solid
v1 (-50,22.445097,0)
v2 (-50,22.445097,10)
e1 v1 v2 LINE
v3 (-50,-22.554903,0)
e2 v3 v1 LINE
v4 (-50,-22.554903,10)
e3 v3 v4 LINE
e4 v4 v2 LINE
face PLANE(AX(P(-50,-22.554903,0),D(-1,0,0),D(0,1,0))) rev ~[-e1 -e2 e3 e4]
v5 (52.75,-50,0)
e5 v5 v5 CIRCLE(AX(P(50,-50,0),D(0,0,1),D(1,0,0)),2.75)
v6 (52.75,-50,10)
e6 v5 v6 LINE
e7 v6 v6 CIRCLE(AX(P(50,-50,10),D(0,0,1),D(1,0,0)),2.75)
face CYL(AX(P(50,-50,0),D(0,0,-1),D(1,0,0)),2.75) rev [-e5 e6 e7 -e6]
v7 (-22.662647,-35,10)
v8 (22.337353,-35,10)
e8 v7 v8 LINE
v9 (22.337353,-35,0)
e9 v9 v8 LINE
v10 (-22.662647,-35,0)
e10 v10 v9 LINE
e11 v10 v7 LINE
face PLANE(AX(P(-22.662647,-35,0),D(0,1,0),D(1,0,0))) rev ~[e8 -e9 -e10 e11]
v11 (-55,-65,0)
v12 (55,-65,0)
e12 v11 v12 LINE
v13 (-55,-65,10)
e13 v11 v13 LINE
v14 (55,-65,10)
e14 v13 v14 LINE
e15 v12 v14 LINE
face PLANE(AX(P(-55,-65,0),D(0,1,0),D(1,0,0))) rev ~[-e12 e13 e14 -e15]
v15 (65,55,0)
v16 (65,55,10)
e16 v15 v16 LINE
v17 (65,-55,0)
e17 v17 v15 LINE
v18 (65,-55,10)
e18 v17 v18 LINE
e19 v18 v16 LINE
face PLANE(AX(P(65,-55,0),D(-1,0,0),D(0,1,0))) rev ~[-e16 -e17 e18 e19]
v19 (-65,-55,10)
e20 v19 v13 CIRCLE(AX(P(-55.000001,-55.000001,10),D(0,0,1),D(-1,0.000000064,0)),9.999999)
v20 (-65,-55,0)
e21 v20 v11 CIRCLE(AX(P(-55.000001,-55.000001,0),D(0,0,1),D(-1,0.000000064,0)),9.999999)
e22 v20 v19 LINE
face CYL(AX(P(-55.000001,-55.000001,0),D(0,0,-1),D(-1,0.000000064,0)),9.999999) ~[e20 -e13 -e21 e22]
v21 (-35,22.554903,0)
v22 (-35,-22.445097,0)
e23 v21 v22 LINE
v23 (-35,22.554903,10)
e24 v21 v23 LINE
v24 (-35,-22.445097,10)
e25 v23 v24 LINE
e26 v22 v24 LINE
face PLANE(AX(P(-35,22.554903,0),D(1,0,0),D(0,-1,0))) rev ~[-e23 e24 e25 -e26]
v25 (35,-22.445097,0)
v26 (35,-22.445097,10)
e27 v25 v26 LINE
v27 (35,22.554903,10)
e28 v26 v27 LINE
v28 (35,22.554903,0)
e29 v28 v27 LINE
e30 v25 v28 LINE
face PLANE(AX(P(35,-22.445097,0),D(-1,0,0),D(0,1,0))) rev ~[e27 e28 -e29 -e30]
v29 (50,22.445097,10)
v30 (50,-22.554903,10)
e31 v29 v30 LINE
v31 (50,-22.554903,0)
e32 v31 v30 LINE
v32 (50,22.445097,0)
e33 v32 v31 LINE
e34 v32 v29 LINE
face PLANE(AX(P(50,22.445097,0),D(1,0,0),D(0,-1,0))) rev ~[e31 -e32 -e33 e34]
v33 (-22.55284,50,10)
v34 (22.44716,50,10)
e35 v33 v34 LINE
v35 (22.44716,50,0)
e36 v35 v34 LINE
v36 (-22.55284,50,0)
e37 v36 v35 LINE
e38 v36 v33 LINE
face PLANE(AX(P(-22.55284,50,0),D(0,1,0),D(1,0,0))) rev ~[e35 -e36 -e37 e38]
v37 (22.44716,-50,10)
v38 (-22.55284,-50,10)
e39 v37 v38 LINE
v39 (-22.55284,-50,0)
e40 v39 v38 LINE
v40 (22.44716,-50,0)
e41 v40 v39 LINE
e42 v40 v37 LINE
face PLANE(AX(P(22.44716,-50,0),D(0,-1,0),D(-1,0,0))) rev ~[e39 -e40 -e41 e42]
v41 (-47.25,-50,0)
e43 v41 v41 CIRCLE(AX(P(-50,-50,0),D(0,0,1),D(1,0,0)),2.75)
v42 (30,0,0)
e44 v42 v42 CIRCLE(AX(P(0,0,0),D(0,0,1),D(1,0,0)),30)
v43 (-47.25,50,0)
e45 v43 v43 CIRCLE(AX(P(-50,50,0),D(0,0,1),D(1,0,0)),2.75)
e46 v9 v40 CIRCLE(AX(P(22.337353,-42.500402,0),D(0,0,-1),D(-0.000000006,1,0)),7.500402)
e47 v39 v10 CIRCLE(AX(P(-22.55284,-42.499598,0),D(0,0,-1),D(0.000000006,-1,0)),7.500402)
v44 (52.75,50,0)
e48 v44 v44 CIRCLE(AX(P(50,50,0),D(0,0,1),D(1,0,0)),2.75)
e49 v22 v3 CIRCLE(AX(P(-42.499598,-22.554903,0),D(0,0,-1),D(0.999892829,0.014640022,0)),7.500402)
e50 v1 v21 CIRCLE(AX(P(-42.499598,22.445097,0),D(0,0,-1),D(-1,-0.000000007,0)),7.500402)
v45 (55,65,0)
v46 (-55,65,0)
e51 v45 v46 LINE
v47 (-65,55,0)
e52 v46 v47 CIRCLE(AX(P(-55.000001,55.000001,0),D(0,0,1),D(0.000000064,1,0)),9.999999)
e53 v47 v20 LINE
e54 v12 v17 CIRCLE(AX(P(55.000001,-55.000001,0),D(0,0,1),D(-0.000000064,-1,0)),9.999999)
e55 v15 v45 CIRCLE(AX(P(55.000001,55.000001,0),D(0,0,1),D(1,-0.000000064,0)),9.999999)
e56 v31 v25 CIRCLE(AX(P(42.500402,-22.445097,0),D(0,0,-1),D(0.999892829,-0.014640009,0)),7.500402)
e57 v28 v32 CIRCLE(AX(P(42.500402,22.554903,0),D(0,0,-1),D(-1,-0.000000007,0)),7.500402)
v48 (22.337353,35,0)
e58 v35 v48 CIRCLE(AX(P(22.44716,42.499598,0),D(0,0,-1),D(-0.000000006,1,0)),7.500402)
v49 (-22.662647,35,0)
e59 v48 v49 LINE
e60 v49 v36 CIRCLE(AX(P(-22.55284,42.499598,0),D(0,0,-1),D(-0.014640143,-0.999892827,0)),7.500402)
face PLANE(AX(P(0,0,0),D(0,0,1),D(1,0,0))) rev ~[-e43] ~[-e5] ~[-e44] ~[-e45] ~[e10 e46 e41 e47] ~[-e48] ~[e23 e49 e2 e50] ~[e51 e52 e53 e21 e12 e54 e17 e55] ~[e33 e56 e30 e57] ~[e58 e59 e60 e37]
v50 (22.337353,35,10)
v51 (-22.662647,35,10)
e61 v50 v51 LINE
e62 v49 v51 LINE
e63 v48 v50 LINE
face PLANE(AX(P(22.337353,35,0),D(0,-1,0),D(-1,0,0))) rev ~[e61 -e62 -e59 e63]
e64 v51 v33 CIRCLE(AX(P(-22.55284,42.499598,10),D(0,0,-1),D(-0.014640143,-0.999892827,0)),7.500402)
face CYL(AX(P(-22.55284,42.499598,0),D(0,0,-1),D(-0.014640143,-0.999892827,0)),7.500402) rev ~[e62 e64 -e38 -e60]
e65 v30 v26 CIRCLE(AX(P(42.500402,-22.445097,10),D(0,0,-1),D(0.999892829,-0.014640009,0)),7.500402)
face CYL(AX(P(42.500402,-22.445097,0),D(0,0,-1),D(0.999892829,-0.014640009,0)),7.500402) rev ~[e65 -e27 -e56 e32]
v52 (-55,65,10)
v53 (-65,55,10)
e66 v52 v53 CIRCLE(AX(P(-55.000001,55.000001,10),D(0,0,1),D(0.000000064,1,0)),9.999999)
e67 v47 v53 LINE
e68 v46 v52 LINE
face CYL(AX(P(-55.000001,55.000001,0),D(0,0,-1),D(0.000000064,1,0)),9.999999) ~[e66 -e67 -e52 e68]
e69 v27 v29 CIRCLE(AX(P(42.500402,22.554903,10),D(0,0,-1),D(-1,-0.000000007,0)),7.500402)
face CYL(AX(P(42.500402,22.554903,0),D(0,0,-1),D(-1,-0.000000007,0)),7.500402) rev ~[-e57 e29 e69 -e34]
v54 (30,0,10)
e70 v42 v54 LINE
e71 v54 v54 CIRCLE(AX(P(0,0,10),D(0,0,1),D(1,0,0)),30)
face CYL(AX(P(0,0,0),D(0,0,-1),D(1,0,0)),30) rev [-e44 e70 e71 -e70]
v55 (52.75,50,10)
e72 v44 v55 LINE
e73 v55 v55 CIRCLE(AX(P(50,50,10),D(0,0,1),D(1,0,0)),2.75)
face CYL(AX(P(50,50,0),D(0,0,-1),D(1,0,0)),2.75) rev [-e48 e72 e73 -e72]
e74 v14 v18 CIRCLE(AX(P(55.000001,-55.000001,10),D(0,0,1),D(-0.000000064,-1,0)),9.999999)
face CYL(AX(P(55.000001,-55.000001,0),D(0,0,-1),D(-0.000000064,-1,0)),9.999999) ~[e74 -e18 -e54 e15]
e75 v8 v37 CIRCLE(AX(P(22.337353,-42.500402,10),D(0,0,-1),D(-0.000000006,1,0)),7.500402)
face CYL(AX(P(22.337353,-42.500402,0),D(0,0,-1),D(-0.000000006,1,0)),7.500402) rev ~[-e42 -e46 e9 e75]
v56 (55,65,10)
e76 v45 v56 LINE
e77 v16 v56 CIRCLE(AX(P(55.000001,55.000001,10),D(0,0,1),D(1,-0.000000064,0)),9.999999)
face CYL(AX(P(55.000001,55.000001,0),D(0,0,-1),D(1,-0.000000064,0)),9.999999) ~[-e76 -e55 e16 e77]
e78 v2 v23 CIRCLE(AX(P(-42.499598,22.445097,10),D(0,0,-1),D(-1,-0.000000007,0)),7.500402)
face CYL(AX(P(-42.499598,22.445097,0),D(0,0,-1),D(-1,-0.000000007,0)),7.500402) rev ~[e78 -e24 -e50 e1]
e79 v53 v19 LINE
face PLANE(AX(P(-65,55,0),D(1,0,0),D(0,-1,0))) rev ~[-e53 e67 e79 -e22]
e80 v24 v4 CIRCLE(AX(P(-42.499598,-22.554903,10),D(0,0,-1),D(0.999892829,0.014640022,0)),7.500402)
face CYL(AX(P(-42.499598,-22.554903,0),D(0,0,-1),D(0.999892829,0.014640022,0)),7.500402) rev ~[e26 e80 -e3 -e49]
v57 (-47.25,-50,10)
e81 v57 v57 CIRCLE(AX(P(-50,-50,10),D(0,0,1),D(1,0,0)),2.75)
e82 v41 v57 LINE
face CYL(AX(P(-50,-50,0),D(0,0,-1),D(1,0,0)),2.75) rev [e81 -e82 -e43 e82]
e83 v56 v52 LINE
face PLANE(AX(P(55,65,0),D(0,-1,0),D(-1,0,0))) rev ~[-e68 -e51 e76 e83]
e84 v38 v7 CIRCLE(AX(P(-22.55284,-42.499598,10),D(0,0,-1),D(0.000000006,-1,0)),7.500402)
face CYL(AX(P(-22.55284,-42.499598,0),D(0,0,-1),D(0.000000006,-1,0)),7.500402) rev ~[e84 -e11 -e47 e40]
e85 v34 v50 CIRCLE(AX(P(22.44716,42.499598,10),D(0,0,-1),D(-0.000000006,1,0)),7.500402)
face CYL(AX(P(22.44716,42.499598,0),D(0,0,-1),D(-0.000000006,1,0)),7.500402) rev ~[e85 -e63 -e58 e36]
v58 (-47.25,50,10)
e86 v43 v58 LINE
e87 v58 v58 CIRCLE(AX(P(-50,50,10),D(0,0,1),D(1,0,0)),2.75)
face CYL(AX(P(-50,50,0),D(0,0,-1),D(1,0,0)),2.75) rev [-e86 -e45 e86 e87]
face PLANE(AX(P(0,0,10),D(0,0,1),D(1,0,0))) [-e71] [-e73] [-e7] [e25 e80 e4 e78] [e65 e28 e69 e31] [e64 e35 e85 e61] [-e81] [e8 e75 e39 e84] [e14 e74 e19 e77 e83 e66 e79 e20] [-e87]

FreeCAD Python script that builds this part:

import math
import FreeCAD as App
import Part
import Sketcher

doc = App.newDocument("Part")
body = doc.addObject("PartDesign::Body", "Body")

# Sketch on XY plane
sketch1 = body.newObject("Sketcher::SketchObject", "Sketch")
sketch1.AttachmentSupport = (doc.getObject("XY_Plane"), [""])
sketch1.MapMode = "FlatFace"
sketch1.addGeometry([
    Part.LineSegment(App.Vector(-55, -65, 0), App.Vector(55, -65, 0)),  # 0
    Part.ArcOfCircle(Part.Circle(App.Vector(55, -55, 0), App.Vector(0, 0, 1), 10), math.radians(-90), math.radians(0)),  # 1
    Part.LineSegment(App.Vector(65, -55, 0), App.Vector(65, 55, 0)),  # 2
    Part.ArcOfCircle(Part.Circle(App.Vector(55, 55, 0), App.Vector(0, 0, 1), 10), math.radians(0), math.radians(90)),  # 3
    Part.LineSegment(App.Vector(55, 65, 0), App.Vector(-55, 65, 0)),  # 4
    Part.ArcOfCircle(Part.Circle(App.Vector(-55, 55, 0), App.Vector(0, 0, 1), 10), math.radians(90), math.radians(180)),  # 5
    Part.LineSegment(App.Vector(-65, 55, 0), App.Vector(-65, -55, 0)),  # 6
    Part.ArcOfCircle(Part.Circle(App.Vector(-55, -55, 0), App.Vector(0, 0, 1), 10), math.radians(180), math.radians(270)),  # 7
    Part.Circle(App.Vector(-50, -50, 0), App.Vector(0, 0, 1), 2.8),  # 8
    Part.ArcOfCircle(Part.Circle(App.Vector(-22.6, -42.5, 0), App.Vector(0, 0, 1), 7.5), math.radians(91), math.radians(270)),  # 9
    Part.LineSegment(App.Vector(-22.7, -35, 0), App.Vector(22.3, -35, 0)),  # 10
    Part.ArcOfCircle(Part.Circle(App.Vector(22.3, -42.5, 0), App.Vector(0, 0, 1), 7.5), math.radians(-89), math.radians(90)),  # 11
    Part.LineSegment(App.Vector(22.4, -50, 0), App.Vector(-22.6, -50, 0)),  # 12
    Part.ArcOfCircle(Part.Circle(App.Vector(-42.5, 22.4, 0), App.Vector(0, 0, 1), 7.5), math.radians(1), math.radians(180)),  # 13
    Part.LineSegment(App.Vector(-35, 22.6, 0), App.Vector(-35, -22.4, 0)),  # 14
    Part.ArcOfCircle(Part.Circle(App.Vector(-42.5, -22.6, 0), App.Vector(0, 0, 1), 7.5), math.radians(180), math.radians(361)),  # 15
    Part.LineSegment(App.Vector(-50, -22.6, 0), App.Vector(-50, 22.4, 0)),  # 16
    Part.Circle(App.Vector(50, -50, 0), App.Vector(0, 0, 1), 2.8),  # 17
    Part.Circle(App.Vector(-50, 50, 0), App.Vector(0, 0, 1), 2.8),  # 18
    Part.LineSegment(App.Vector(-22.6, 50, 0), App.Vector(22.4, 50, 0)),  # 19
    Part.ArcOfCircle(Part.Circle(App.Vector(22.4, 42.5, 0), App.Vector(0, 0, 1), 7.5), math.radians(-91), math.radians(90)),  # 20
    Part.LineSegment(App.Vector(22.3, 35, 0), App.Vector(-22.7, 35, 0)),  # 21
    Part.ArcOfCircle(Part.Circle(App.Vector(-22.6, 42.5, 0), App.Vector(0, 0, 1), 7.5), math.radians(90), math.radians(269)),  # 22
    Part.Circle(App.Vector(0, 0, 0), App.Vector(0, 0, 1), 30),  # 23
    Part.ArcOfCircle(Part.Circle(App.Vector(42.5, 22.6, 0), App.Vector(0, 0, 1), 7.5), math.radians(-1), math.radians(180)),  # 24
    Part.LineSegment(App.Vector(50, 22.4, 0), App.Vector(50, -22.6, 0)),  # 25
    Part.ArcOfCircle(Part.Circle(App.Vector(42.5, -22.4, 0), App.Vector(0, 0, 1), 7.5), math.radians(180), math.radians(359)),  # 26
    Part.LineSegment(App.Vector(35, -22.4, 0), App.Vector(35, 22.6, 0)),  # 27
    Part.Circle(App.Vector(50, 50, 0), App.Vector(0, 0, 1), 2.8),  # 28
], False)
sketch1.addConstraint([
    Sketcher.Constraint("Tangent", 0, 2, 1, 1),
    Sketcher.Constraint("Tangent", 1, 2, 2, 1),
    Sketcher.Constraint("Tangent", 2, 2, 3, 1),
    Sketcher.Constraint("Tangent", 3, 2, 4, 1),
    Sketcher.Constraint("Tangent", 4, 2, 5, 1),
    Sketcher.Constraint("Tangent", 5, 2, 6, 1),
    Sketcher.Constraint("Tangent", 6, 2, 7, 1),
    Sketcher.Constraint("Tangent", 7, 2, 0, 1),
    Sketcher.Constraint("Coincident", 9, 1, 10, 1),
    Sketcher.Constraint("Tangent", 10, 2, 11, 2),
    Sketcher.Constraint("Coincident", 11, 1, 12, 1),
    Sketcher.Constraint("Tangent", 12, 2, 9, 2),
    Sketcher.Constraint("Coincident", 13, 1, 14, 1),
    Sketcher.Constraint("Coincident", 14, 2, 15, 2),
    Sketcher.Constraint("Tangent", 15, 1, 16, 1),
    Sketcher.Constraint("Tangent", 16, 2, 13, 2),
    Sketcher.Constraint("Tangent", 19, 2, 20, 2),
    Sketcher.Constraint("Coincident", 20, 1, 21, 1),
    Sketcher.Constraint("Coincident", 21, 2, 22, 2),
    Sketcher.Constraint("Tangent", 22, 1, 19, 1),
    Sketcher.Constraint("Coincident", 24, 1, 25, 1),
    Sketcher.Constraint("Coincident", 25, 2, 26, 2),
    Sketcher.Constraint("Tangent", 26, 1, 27, 1),
    Sketcher.Constraint("Tangent", 27, 2, 24, 2),
    Sketcher.Constraint("Horizontal", 0),
    Sketcher.Constraint("Vertical", 2),
    Sketcher.Constraint("Horizontal", 4),
    Sketcher.Constraint("Vertical", 6),
    Sketcher.Constraint("Horizontal", 10),
    Sketcher.Constraint("Horizontal", 12),
    Sketcher.Constraint("Vertical", 14),
    Sketcher.Constraint("Vertical", 16),
    Sketcher.Constraint("Horizontal", 19),
    Sketcher.Constraint("Horizontal", 21),
    Sketcher.Constraint("Vertical", 25),
    Sketcher.Constraint("Vertical", 27),
    Sketcher.Constraint("Coincident", 23, 3, -1, 1),
    Sketcher.Constraint("Equal", 1, 3),
    Sketcher.Constraint("Equal", 3, 5),
    Sketcher.Constraint("Equal", 5, 7),
    Sketcher.Constraint("Equal", 9, 11),
    Sketcher.Constraint("Equal", 11, 13),
    Sketcher.Constraint("Equal", 13, 15),
    Sketcher.Constraint("Equal", 8, 17),
    Sketcher.Constraint("Equal", 17, 18),
    Sketcher.Constraint("Equal", 15, 20),
    Sketcher.Constraint("Equal", 20, 22),
    Sketcher.Constraint("Equal", 22, 24),
    Sketcher.Constraint("Equal", 24, 26),
    Sketcher.Constraint("Equal", 18, 28),
    Sketcher.Constraint("Symmetric", 1, 3, 5, 3, -1, 1),
    Sketcher.Constraint("Symmetric", 17, 3, 18, 3, -1, 1),
    Sketcher.Constraint("Symmetric", 8, 3, 28, 3, -1, 1),
    Sketcher.Constraint("Symmetric", 8, 3, 17, 3, -2),
    Sketcher.Constraint("Symmetric", 16, 2, 24, 1, -2),
    Sketcher.Constraint("Symmetric", 14, 2, 26, 1, -2),
    Sketcher.Constraint("Symmetric", 9, 3, 22, 3, -1),
    Sketcher.Constraint("Symmetric", 10, 2, 20, 1, -1),
    Sketcher.Constraint("Horizontal", 17, 3, 11, 1),
    Sketcher.Constraint("Vertical", 18, 3, 15, 1),
    Sketcher.Constraint("Equal", 4, 2),
    Sketcher.Constraint("Equal", 21, 14),
    Sketcher.Constraint("Diameter", 23, 60.0),
    Sketcher.Constraint("Radius", 1, 9.999999),
    Sketcher.Constraint("Diameter", 8, 5.5),
    Sketcher.Constraint("DistanceX", 0, 1, 0, 2, 110.0),
    Sketcher.Constraint("DistanceX", 10, 1, 10, 2, 45.0),
    Sketcher.Constraint("DistanceX", 8, 3, -1, 1, 50.0),
    Sketcher.Constraint("DistanceY", 8, 3, -1, 1, 50.0),
    Sketcher.Constraint("DistanceY", 9, 1, -1, 1, 35.0),
    Sketcher.Constraint("DistanceX", 13, 1, -1, 1, 35.0),
    Sketcher.Constraint("Radius", 9, 7.500402),
    Sketcher.Constraint("DistanceY", 11, 3, 13, 3, 64.945499),
    Sketcher.Constraint("DistanceX", 9, 3, -1, 1, 22.55284),
])
pad1 = body.newObject("PartDesign::Pad", "Pad")
pad1.Profile = sketch1
pad1.Length = 10

doc.recompute()
